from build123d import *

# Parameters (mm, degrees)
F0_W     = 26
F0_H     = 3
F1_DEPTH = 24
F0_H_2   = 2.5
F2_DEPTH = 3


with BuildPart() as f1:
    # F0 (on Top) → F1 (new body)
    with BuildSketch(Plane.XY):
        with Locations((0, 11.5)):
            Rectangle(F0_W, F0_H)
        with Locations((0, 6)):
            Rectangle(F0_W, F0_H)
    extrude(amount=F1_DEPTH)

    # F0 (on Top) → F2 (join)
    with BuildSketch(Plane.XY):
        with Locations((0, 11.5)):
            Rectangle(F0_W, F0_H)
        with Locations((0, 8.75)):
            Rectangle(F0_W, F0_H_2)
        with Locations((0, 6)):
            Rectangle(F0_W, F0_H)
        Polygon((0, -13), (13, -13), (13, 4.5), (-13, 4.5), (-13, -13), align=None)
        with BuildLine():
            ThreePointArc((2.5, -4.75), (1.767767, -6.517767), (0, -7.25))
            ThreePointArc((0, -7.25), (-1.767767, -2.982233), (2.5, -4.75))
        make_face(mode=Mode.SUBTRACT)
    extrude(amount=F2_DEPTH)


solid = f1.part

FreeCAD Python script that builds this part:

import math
import FreeCAD as App
import Part
import Sketcher
Q = App.Units.Quantity


def add_polygon(sketch, points):
    """Adds a closed chain of lines whose ends are joined by coincident constraints."""
    first, n = sketch.GeometryCount, len(points)
    for a, b in zip(points, points[1:] + points[:1]):
        sketch.addGeometry(Part.LineSegment(App.Vector(*a, 0), App.Vector(*b, 0)), False)
    for i in range(n):
        sketch.addConstraint(Sketcher.Constraint("Coincident", first + i, 2, first + (i + 1) % n, 1))

doc = App.newDocument("Part")
body = doc.addObject("PartDesign::Body", "Body")
body.AllowCompound = True

sketch1 = body.newObject("Sketcher::SketchObject", "Sketch")
sketch1.AttachmentSupport = (doc.getObject("XY_Plane"), [""])
sketch1.MapMode = "FlatFace"
add_polygon(sketch1, [(-13, 13), (-13, 10), (13, 10), (13, 13)])
add_polygon(sketch1, [(-13, 7.5), (-13, 4.5), (13, 4.5), (13, 7.5)])
sketch1.addConstraint(Sketcher.Constraint("Vertical", 0))
sketch1.addConstraint(Sketcher.Constraint("Horizontal", 1))
sketch1.addConstraint(Sketcher.Constraint("Vertical", 2))
sketch1.addConstraint(Sketcher.Constraint("Horizontal", 3))
sketch1.addConstraint(Sketcher.Constraint("Vertical", 4))
sketch1.addConstraint(Sketcher.Constraint("Horizontal", 5))
sketch1.addConstraint(Sketcher.Constraint("Vertical", 6))
sketch1.addConstraint(Sketcher.Constraint("Horizontal", 7))
sketch1.addConstraint(Sketcher.Constraint("Vertical", 3, 2, 4, 2))
sketch1.addConstraint(Sketcher.Constraint("Vertical", 2, 2, 5, 2))
sketch1.addConstraint(Sketcher.Constraint("Equal", 2, 4))
sketch1.addConstraint(Sketcher.Constraint("DistanceX", 1, 1, 1, 2, Q("26 mm")))
sketch1.addConstraint(Sketcher.Constraint("DistanceY", 0, 2, 0, 1, Q("3 mm")))
sketch1.addConstraint(Sketcher.Constraint("DistanceX", 0, 2, -1, 1, Q("13 mm")))
sketch1.addConstraint(Sketcher.Constraint("DistanceY", -1, 1, 0, 2, Q("10 mm")))
sketch1.addConstraint(Sketcher.Constraint("DistanceY", -1, 1, 4, 2, Q("4.5 mm")))
pad1 = body.newObject("PartDesign::Pad", "Pad")
pad1.Profile = sketch1
pad1.Length = 24

sketch2 = body.newObject("Sketcher::SketchObject", "Sketch001")
sketch2.AttachmentSupport = (doc.getObject("XY_Plane"), [""])
sketch2.MapMode = "FlatFace"
add_polygon(sketch2, [(-13, 13), (-13, -13), (13, -13), (13, 13)])
sketch2.addGeometry(Part.ArcOfCircle(Part.Circle(App.Vector(0, -4.75, 0), App.Vector(0, 0, 1), 2.5), math.radians(-0.000001), math.radians(270.000001)), False)
sketch2.addGeometry(Part.ArcOfCircle(Part.Circle(App.Vector(0, -4.75, 0), App.Vector(0, 0, 1), 2.5), math.radians(-90.000004), math.radians(0.000004)), False)
sketch2.addConstraint(Sketcher.Constraint("Tangent", 4, 1, 5, 2))
sketch2.addConstraint(Sketcher.Constraint("Coincident", 5, 1, 4, 2))
sketch2.addConstraint(Sketcher.Constraint("Vertical", 0))
sketch2.addConstraint(Sketcher.Constraint("Horizontal", 1))
sketch2.addConstraint(Sketcher.Constraint("Vertical", 2))
sketch2.addConstraint(Sketcher.Constraint("Horizontal", 3))
sketch2.addConstraint(Sketcher.Constraint("Symmetric", 0, 2, 2, 2, -1, 1))
sketch2.addConstraint(Sketcher.Constraint("PointOnObject", 4, 3, -2))
sketch2.addConstraint(Sketcher.Constraint("PointOnObject", 5, 1, -2))
sketch2.addConstraint(Sketcher.Constraint("Horizontal", 5, 3, 4, 1))
sketch2.addConstraint(Sketcher.Constraint("Equal", 3, 0))
sketch2.addConstraint(Sketcher.Constraint("Radius", 4, Q("2.5 mm")))
sketch2.addConstraint(Sketcher.Constraint("DistanceX", 1, 1, 1, 2, Q("26 mm")))
sketch2.addConstraint(Sketcher.Constraint("DistanceY", 4, 3, -1, 1, Q("4.75 mm")))
pad2 = body.newObject("PartDesign::Pad", "Pad001")
pad2.Profile = sketch2
pad2.Length = 3

doc.recompute()
